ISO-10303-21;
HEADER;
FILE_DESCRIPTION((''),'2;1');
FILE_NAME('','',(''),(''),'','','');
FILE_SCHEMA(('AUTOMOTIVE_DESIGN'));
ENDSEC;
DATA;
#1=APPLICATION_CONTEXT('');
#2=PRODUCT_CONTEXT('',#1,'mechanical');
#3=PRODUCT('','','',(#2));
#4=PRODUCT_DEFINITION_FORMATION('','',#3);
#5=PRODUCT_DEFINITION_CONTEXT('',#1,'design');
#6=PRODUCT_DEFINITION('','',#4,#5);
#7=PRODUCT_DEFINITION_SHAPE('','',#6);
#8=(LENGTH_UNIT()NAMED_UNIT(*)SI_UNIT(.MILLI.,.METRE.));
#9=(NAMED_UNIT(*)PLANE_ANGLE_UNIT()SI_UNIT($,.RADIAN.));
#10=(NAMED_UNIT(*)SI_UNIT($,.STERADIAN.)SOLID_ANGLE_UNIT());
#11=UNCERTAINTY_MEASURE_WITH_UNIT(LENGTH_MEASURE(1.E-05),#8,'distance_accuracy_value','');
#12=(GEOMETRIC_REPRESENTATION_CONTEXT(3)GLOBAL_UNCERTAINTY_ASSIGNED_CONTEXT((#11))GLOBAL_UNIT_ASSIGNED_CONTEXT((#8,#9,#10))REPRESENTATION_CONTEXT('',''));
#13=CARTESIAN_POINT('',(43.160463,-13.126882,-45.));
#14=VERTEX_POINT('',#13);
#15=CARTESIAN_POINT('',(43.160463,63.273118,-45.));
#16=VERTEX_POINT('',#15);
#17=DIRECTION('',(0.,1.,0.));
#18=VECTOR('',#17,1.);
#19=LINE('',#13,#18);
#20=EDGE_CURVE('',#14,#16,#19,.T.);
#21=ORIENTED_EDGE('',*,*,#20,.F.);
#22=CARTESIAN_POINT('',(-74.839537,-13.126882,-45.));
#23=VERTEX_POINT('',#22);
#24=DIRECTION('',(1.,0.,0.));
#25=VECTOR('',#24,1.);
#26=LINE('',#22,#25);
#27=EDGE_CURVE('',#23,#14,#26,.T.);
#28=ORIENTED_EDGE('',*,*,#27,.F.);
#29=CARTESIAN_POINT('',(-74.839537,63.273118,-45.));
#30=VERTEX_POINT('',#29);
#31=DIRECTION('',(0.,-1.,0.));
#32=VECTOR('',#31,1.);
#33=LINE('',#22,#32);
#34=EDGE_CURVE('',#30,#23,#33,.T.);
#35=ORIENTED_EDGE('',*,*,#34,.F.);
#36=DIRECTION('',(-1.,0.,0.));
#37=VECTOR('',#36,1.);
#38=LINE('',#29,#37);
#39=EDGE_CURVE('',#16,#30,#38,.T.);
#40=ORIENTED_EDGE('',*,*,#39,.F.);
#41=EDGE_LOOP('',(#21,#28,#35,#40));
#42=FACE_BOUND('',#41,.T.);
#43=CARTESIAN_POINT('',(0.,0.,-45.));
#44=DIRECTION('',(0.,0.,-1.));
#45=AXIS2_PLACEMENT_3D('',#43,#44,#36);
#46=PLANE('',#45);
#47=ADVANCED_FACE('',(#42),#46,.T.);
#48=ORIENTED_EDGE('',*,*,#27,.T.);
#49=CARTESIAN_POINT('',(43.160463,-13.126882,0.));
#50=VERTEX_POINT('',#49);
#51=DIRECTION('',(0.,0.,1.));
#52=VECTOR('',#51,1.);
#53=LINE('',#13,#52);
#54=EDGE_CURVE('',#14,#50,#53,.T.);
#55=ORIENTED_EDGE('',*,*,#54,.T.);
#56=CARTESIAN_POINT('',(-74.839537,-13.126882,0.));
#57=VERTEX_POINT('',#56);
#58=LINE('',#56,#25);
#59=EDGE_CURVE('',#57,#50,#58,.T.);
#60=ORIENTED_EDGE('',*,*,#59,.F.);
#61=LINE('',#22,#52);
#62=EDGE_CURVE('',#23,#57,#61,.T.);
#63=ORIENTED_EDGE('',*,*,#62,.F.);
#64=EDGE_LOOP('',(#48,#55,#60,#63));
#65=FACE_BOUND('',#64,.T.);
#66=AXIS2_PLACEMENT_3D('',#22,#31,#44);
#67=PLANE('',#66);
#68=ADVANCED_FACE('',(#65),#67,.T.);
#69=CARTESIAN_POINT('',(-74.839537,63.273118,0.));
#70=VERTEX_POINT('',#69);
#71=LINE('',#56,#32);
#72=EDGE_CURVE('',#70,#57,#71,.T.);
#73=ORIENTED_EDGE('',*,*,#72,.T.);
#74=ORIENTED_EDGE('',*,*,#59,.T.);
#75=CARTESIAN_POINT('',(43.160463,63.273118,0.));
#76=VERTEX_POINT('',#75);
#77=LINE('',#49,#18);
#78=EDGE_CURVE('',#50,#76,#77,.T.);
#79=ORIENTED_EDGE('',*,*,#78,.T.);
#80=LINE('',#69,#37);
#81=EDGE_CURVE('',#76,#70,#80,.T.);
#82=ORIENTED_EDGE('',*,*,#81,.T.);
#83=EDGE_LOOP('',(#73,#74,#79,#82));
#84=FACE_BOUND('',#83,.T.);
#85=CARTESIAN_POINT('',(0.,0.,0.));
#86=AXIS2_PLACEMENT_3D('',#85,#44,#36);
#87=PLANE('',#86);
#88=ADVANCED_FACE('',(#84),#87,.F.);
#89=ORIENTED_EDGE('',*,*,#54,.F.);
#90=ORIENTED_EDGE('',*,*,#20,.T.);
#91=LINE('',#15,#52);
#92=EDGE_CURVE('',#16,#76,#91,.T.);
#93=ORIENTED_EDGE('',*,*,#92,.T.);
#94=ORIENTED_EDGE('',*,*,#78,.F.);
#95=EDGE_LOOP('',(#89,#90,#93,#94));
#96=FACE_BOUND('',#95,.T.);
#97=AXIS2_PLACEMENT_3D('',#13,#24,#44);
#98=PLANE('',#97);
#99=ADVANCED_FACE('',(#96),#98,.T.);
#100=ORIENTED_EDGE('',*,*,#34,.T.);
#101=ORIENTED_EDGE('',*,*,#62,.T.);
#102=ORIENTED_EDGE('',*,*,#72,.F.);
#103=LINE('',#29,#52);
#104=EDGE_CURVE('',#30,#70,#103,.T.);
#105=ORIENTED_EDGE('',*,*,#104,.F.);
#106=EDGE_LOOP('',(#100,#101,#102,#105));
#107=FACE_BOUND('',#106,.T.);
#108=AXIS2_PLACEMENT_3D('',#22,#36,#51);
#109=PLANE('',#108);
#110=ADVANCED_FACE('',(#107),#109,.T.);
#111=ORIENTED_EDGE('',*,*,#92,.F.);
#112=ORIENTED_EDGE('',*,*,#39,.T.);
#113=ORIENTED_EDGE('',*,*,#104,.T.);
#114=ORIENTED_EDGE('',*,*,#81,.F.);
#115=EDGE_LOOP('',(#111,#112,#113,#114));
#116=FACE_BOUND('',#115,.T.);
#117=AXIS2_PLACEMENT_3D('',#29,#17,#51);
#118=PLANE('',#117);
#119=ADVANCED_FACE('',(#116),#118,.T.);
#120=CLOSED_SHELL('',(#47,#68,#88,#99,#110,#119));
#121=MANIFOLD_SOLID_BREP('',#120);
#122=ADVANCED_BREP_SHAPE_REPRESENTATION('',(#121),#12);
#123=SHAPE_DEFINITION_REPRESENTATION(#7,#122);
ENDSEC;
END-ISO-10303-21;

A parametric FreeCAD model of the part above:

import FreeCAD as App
import Part
import Sketcher
Q = App.Units.Quantity


def add_polygon(sketch, points):
    """Adds a closed chain of lines whose ends are joined by coincident constraints."""
    first, n = sketch.GeometryCount, len(points)
    for a, b in zip(points, points[1:] + points[:1]):
        sketch.addGeometry(Part.LineSegment(App.Vector(*a, 0), App.Vector(*b, 0)), False)
    for i in range(n):
        sketch.addConstraint(Sketcher.Constraint("Coincident", first + i, 2, first + (i + 1) % n, 1))

doc = App.newDocument("Part")
body = doc.addObject("PartDesign::Body", "Body")

# Sketch on XY plane
sketch1 = body.newObject("Sketcher::SketchObject", "Sketch")
sketch1.AttachmentSupport = (doc.getObject("XY_Plane"), [""])
sketch1.MapMode = "FlatFace"
add_polygon(sketch1, [(-74.839537, 63.273118), (-74.839537, -13.126882), (43.160463, -13.126882), (43.160463, 63.273118)])  # lines 0-3
sketch1.addConstraint(Sketcher.Constraint("Vertical", 0))
sketch1.addConstraint(Sketcher.Constraint("Horizontal", 1))
sketch1.addConstraint(Sketcher.Constraint("Vertical", 2))
sketch1.addConstraint(Sketcher.Constraint("Horizontal", 3))
sketch1.addConstraint(Sketcher.Constraint("DistanceX", 1, 1, 1, 2, Q("118 mm")))
sketch1.addConstraint(Sketcher.Constraint("DistanceY", 0, 2, 0, 1, Q("76.4 mm")))
sketch1.addConstraint(Sketcher.Constraint("DistanceX", 0, 2, -1, 1, Q("74.839537 mm")))
sketch1.addConstraint(Sketcher.Constraint("DistanceY", 0, 2, -1, 1, Q("13.126882 mm")))
pad1 = body.newObject("PartDesign::Pad", "Pad")
pad1.Profile = sketch1
pad1.Length = 45
pad1.Reversed = True

doc.recompute()
